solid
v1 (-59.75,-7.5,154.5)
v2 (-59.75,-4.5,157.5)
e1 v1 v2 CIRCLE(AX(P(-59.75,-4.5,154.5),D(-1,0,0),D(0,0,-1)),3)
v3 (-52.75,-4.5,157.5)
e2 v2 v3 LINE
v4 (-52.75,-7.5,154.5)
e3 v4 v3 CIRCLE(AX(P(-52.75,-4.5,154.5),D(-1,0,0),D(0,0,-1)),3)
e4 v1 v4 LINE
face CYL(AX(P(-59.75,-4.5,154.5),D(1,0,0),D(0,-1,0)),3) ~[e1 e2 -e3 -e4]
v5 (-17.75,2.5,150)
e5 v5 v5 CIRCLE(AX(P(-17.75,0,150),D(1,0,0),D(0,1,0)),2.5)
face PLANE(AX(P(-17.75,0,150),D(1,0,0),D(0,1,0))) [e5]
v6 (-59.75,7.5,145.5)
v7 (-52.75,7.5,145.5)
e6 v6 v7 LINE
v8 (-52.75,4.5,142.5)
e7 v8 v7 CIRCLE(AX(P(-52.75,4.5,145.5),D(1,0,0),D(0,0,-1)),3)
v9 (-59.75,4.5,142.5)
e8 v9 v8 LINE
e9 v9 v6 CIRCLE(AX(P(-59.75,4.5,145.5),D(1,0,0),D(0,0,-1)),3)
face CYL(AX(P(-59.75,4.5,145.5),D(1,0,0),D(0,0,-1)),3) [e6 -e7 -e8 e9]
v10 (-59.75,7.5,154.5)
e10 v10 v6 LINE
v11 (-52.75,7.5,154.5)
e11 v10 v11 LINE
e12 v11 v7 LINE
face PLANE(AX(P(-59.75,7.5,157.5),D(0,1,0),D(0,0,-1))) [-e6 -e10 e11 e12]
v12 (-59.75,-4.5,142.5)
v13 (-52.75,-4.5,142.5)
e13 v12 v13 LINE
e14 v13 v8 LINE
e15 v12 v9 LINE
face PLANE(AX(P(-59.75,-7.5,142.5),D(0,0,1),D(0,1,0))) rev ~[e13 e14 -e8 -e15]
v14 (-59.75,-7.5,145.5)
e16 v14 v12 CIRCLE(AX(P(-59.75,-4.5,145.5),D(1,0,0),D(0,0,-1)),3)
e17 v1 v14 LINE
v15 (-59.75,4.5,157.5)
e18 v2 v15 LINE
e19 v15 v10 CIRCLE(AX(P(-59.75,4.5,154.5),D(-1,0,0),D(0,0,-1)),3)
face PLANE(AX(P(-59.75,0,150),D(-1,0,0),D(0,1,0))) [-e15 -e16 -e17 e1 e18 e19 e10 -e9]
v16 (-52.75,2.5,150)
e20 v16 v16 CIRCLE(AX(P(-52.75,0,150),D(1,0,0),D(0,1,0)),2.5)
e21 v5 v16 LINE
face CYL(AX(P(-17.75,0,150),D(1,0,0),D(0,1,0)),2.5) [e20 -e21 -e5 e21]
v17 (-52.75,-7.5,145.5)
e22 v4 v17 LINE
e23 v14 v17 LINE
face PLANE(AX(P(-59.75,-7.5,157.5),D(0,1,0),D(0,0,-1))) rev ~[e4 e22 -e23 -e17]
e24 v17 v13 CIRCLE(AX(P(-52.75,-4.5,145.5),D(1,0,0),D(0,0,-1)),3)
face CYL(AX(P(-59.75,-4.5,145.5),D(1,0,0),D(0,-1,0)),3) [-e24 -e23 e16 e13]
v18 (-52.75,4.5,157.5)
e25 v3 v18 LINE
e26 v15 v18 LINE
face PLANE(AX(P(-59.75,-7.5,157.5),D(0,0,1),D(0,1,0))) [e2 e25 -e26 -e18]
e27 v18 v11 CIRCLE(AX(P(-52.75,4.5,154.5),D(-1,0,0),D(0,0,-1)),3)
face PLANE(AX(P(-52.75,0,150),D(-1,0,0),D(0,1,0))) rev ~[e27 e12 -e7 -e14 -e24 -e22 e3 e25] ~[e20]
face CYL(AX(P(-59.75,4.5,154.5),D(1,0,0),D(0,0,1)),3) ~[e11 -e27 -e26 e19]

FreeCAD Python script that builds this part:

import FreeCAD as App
import Part
import Sketcher
Q = App.Units.Quantity


def edges_at(feature, points):
    """Names of the edges that pass closest to the given points."""
    edges = feature.Shape.Edges
    near = lambda p: min(range(len(edges)), key=lambda i: edges[i].distToShape(Part.Vertex(*p))[0])
    return sorted({f"Edge{near(p) + 1}" for p in points})


def add_polygon(sketch, points):
    """Adds a closed chain of lines whose ends are joined by coincident constraints."""
    first, n = sketch.GeometryCount, len(points)
    for a, b in zip(points, points[1:] + points[:1]):
        sketch.addGeometry(Part.LineSegment(App.Vector(*a, 0), App.Vector(*b, 0)), False)
    for i in range(n):
        sketch.addConstraint(Sketcher.Constraint("Coincident", first + i, 2, first + (i + 1) % n, 1))

doc = App.newDocument("Part")
params = doc.addObject("Spreadsheet::Sheet", "Params")
for row, (alias, value) in enumerate([
    ("sketch1_diameter", "5 mm"),
    ("pad1_length", "42 mm"),
    ("sketch2_width", "15 mm"),
    ("pad2_length", "7 mm"),
    ("fillet_radius", "3 mm"),
], start=1):
    params.set(f"A{row}", alias)
    params.set(f"B{row}", "=" + value)
    params.setAlias(f"B{row}", alias)

body = doc.addObject("PartDesign::Body", "Body")

# Sketch on XZ plane
sketch1 = body.newObject("Sketcher::SketchObject", "Sketch")
sketch1.AttachmentSupport = (doc.getObject("XZ_Plane"), [""])
sketch1.MapMode = "FlatFace"
sketch1.addGeometry(Part.Circle(App.Vector(0, 0, 0), App.Vector(0, 0, 1), 2.5), False)
sketch1.addConstraint([
    Sketcher.Constraint("Coincident", 0, 3, -1, 1),
    Sketcher.Constraint("Diameter", 0, Q("5 mm")),
])
sketch1.setExpression("Constraints[1]", "Params.sketch1_diameter")
pad1 = body.newObject("PartDesign::Pad", "Pad")
pad1.Profile = sketch1
pad1.setExpression("Length", "Params.pad1_length")
pad1.Reversed = True

# Sketch on XZ plane
sketch2 = body.newObject("Sketcher::SketchObject", "Sketch001")
sketch2.AttachmentSupport = (doc.getObject("XZ_Plane"), [""])
sketch2.MapMode = "FlatFace"
sketch2.AttachmentOffset = App.Placement(App.Vector(0, 0, -42), App.Rotation())
add_polygon(sketch2, [(-8, -8), (-8, 8), (8, 8), (8, -8)])  # lines 0-3
sketch2.addConstraint([
    Sketcher.Constraint("Vertical", 0),
    Sketcher.Constraint("Horizontal", 1),
    Sketcher.Constraint("Vertical", 2),
    Sketcher.Constraint("Horizontal", 3),
    Sketcher.Constraint("Symmetric", 0, 2, 2, 2, -1, 1),
    Sketcher.Constraint("Equal", 3, 0),
    Sketcher.Constraint("DistanceX", 1, 1, 1, 2, Q("15 mm")),
])
sketch2.setExpression("Constraints[10]", "Params.sketch2_width")
pad2 = body.newObject("PartDesign::Pad", "Pad001")
pad2.Profile = sketch2
pad2.setExpression("Length", "Params.pad2_length")
doc.recompute()

fillet = body.newObject("PartDesign::Fillet", "Fillet")
fillet.Base = (pad2, edges_at(pad2, [
    (7.5, 38.5, -7.5),
    (7.5, 38.5, 7.5),
    (-7.5, 38.5, 7.5),
    (-7.5, 38.5, -7.5),
]))
fillet.setExpression("Radius", "Params.fillet_radius")
body2 = doc.addObject("PartDesign::Body", "Body001")
doc.recompute()

body.Placement = App.Placement(App.Vector(-17.75, 0, 150), App.Rotation(App.Vector(0, 0, 1), 90))
boolean = body2.newObject("PartDesign::Boolean", "Boolean")
boolean.Type = "Fuse"
boolean.addObjects([body])

doc.recompute()
